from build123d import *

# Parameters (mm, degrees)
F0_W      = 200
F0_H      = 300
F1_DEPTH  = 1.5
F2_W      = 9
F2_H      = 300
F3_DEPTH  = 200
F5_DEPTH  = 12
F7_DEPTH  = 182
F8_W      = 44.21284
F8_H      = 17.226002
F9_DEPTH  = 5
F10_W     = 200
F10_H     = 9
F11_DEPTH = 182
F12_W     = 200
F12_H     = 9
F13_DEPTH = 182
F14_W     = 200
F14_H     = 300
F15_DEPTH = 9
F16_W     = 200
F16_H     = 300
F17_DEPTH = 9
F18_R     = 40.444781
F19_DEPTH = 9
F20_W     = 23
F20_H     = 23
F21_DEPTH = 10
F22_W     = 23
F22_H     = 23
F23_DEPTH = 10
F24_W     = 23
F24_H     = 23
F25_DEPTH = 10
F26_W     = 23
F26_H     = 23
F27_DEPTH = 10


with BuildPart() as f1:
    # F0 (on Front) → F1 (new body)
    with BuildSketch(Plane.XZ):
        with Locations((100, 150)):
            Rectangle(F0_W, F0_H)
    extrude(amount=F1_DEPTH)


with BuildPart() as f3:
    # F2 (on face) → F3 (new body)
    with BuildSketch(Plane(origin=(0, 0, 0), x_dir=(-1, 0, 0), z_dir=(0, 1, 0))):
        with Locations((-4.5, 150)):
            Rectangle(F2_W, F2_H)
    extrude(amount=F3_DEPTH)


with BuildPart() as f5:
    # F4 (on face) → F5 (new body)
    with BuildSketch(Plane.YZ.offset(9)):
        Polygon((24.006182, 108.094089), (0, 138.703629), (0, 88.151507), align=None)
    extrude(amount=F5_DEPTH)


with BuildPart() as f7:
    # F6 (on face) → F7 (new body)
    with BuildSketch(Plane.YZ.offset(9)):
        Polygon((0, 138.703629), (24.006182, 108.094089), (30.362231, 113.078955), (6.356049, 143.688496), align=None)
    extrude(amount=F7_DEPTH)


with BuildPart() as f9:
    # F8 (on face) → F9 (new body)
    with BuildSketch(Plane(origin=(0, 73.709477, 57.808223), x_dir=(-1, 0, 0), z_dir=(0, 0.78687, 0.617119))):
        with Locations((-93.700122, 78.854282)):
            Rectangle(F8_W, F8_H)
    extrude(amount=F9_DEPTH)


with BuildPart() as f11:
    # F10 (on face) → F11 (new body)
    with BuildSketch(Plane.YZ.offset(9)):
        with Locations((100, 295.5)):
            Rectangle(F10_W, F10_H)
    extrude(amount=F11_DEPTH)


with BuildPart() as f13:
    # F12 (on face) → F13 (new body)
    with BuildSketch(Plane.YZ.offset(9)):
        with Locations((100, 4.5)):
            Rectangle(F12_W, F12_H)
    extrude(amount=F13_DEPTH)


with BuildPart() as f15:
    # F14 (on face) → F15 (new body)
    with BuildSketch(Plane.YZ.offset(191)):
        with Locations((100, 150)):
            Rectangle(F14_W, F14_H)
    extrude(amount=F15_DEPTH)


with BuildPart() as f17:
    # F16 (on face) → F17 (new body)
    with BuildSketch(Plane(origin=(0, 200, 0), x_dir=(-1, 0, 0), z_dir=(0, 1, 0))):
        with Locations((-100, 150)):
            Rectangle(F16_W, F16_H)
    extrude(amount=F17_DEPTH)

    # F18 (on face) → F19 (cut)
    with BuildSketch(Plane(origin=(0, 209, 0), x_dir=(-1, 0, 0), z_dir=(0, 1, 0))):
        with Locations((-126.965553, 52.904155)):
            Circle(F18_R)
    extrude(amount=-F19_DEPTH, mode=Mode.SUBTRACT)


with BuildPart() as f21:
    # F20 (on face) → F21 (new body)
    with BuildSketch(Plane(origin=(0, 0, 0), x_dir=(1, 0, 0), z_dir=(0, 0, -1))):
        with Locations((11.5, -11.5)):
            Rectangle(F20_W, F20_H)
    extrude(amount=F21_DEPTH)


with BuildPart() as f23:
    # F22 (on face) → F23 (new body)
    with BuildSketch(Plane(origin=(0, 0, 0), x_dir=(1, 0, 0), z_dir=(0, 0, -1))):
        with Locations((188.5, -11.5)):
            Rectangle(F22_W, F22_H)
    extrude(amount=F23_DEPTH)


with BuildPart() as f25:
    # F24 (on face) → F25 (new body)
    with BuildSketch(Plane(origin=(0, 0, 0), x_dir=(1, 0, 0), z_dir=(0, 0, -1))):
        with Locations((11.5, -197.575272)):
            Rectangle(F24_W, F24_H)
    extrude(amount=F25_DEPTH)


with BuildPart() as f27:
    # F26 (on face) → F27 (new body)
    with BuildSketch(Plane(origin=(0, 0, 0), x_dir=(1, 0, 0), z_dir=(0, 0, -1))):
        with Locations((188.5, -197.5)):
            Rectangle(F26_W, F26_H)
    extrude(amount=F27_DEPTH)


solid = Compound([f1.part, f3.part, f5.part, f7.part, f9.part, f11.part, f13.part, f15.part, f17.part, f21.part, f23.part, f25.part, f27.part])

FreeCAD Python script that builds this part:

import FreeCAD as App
import Part
import Sketcher

doc = App.newDocument("Part")
params = doc.addObject("Spreadsheet::Sheet", "Params")
for row, (alias, value) in enumerate([
    ("sketch1_width", "200 mm"),
    ("sketch1_height", "300 mm"),
    ("pad1_length", "1.5 mm"),
    ("sketch2_width", "9 mm"),
    ("sketch2_height", "300 mm"),
    ("pad2_length", "200 mm"),
    ("pad3_length", "12 mm"),
    ("pad4_length", "182 mm"),
    ("pad5_length", "5 mm"),
    ("sketch6_width", "200 mm"),
    ("sketch6_height", "9 mm"),
    ("pad6_length", "182 mm"),
    ("sketch7_width", "200 mm"),
    ("sketch7_height", "9 mm"),
    ("pad7_length", "182 mm"),
    ("sketch8_width", "200 mm"),
    ("sketch8_height", "300 mm"),
    ("pad8_length", "9 mm"),
    ("sketch9_width", "200 mm"),
    ("sketch9_height", "300 mm"),
    ("pad9_length", "9 mm"),
    ("pocket1_length", "9 mm"),
    ("sketch11_width", "23 mm"),
    ("pad10_length", "10 mm"),
    ("sketch12_width", "23 mm"),
    ("pad11_length", "10 mm"),
    ("sketch13_width", "23 mm"),
    ("pad12_length", "10 mm"),
    ("sketch14_width", "23 mm"),
    ("pad13_length", "10 mm"),
], start=1):
    params.set(f"A{row}", alias)
    params.set(f"B{row}", "=" + value)
    params.setAlias(f"B{row}", alias)

body = doc.addObject("PartDesign::Body", "Body")

sketch1 = body.newObject("Sketcher::SketchObject", "Sketch")
sketch1.AttachmentSupport = (doc.getObject("XZ_Plane"), [""])
sketch1.MapMode = "FlatFace"
sketch1.addGeometry([
    Part.LineSegment(App.Vector(0, 300, 0), App.Vector(0, 0, 0)),
    Part.LineSegment(App.Vector(0, 0, 0), App.Vector(200, 0, 0)),
    Part.LineSegment(App.Vector(200, 0, 0), App.Vector(200, 300, 0)),
    Part.LineSegment(App.Vector(200, 300, 0), App.Vector(0, 300, 0)),
], False)
sketch1.addConstraint([
    Sketcher.Constraint("Coincident", 0, 2, 1, 1),
    Sketcher.Constraint("Coincident", 1, 2, 2, 1),
    Sketcher.Constraint("Coincident", 2, 2, 3, 1),
    Sketcher.Constraint("Coincident", 3, 2, 0, 1),
    Sketcher.Constraint("Vertical", 0),
    Sketcher.Constraint("Horizontal", 1),
    Sketcher.Constraint("Vertical", 2),
    Sketcher.Constraint("Horizontal", 3),
    Sketcher.Constraint("Coincident", 0, 2, -1, 1),
    Sketcher.Constraint("DistanceX", 1, 1, 1, 2, 200.0),
    Sketcher.Constraint("DistanceY", 0, 2, 0, 1, 300.0),
])
sketch1.setExpression("Constraints[9]", "Params.sketch1_width")
sketch1.setExpression("Constraints[10]", "Params.sketch1_height")
pad1 = body.newObject("PartDesign::Pad", "Pad")
pad1.Profile = sketch1
pad1.setExpression("Length", "Params.pad1_length")
body2 = doc.addObject("PartDesign::Body", "Body001")

sketch2 = body2.newObject("Sketcher::SketchObject", "Sketch001")
sketch2.AttachmentSupport = (doc.getObject("XZ_Plane001"), [""])
sketch2.MapMode = "FlatFace"
sketch2.addGeometry([
    Part.LineSegment(App.Vector(9, 300, 0), App.Vector(9, 0, 0)),
    Part.LineSegment(App.Vector(9, 0, 0), App.Vector(0, 0, 0)),
    Part.LineSegment(App.Vector(0, 0, 0), App.Vector(0, 300, 0)),
    Part.LineSegment(App.Vector(0, 300, 0), App.Vector(9, 300, 0)),
], False)
sketch2.addConstraint([
    Sketcher.Constraint("Coincident", 0, 2, 1, 1),
    Sketcher.Constraint("Coincident", 1, 2, 2, 1),
    Sketcher.Constraint("Coincident", 2, 2, 3, 1),
    Sketcher.Constraint("Coincident", 3, 2, 0, 1),
    Sketcher.Constraint("Vertical", 0),
    Sketcher.Constraint("Horizontal", 1),
    Sketcher.Constraint("Vertical", 2),
    Sketcher.Constraint("Horizontal", 3),
    Sketcher.Constraint("Coincident", 1, 2, -1, 1),
    Sketcher.Constraint("DistanceX", 1, 2, 1, 1, 9.0),
    Sketcher.Constraint("DistanceY", 0, 2, 0, 1, 300.0),
])
sketch2.setExpression("Constraints[9]", "Params.sketch2_width")
sketch2.setExpression("Constraints[10]", "Params.sketch2_height")
pad2 = body2.newObject("PartDesign::Pad", "Pad001")
pad2.Profile = sketch2
pad2.setExpression("Length", "Params.pad2_length")
pad2.Reversed = True
body3 = doc.addObject("PartDesign::Body", "Body002")

sketch3 = body3.newObject("Sketcher::SketchObject", "Sketch002")
sketch3.AttachmentSupport = (doc.getObject("YZ_Plane002"), [""])
sketch3.MapMode = "FlatFace"
sketch3.AttachmentOffset = App.Placement(App.Vector(0, 0, 9), App.Rotation())
sketch3.addGeometry([
    Part.LineSegment(App.Vector(24, 108, 0), App.Vector(0, 139, 0)),
    Part.LineSegment(App.Vector(0, 139, 0), App.Vector(0, 88, 0)),
    Part.LineSegment(App.Vector(0, 88, 0), App.Vector(24, 108, 0)),
], False)
sketch3.addConstraint([
    Sketcher.Constraint("Coincident", 0, 2, 1, 1),
    Sketcher.Constraint("Coincident", 1, 2, 2, 1),
    Sketcher.Constraint("Coincident", 2, 2, 0, 1),
    Sketcher.Constraint("Vertical", 1),
    Sketcher.Constraint("PointOnObject", 0, 2, -2),
    Sketcher.Constraint("DistanceY", 1, 2, 1, 1, 50.552122),
    Sketcher.Constraint("DistanceY", -1, 1, 0, 2, 138.703629),
    Sketcher.Constraint("DistanceX", -1, 1, 2, 2, 24.006182),
    Sketcher.Constraint("DistanceY", -1, 1, 2, 2, 108.094089),
])
pad3 = body3.newObject("PartDesign::Pad", "Pad002")
pad3.Profile = sketch3
pad3.setExpression("Length", "Params.pad3_length")
body4 = doc.addObject("PartDesign::Body", "Body003")

sketch4 = body4.newObject("Sketcher::SketchObject", "Sketch003")
sketch4.AttachmentSupport = (doc.getObject("YZ_Plane003"), [""])
sketch4.MapMode = "FlatFace"
sketch4.AttachmentOffset = App.Placement(App.Vector(0, 0, 9), App.Rotation())
sketch4.addGeometry([
    Part.LineSegment(App.Vector(0, 139, 0), App.Vector(24, 108, 0)),
    Part.LineSegment(App.Vector(24, 108, 0), App.Vector(30, 113, 0)),
    Part.LineSegment(App.Vector(30, 113, 0), App.Vector(6, 144, 0)),
    Part.LineSegment(App.Vector(6, 144, 0), App.Vector(0, 139, 0)),
], False)
sketch4.addConstraint([
    Sketcher.Constraint("Coincident", 0, 2, 1, 1),
    Sketcher.Constraint("Coincident", 1, 2, 2, 1),
    Sketcher.Constraint("Coincident", 2, 2, 3, 1),
    Sketcher.Constraint("Coincident", 3, 2, 0, 1),
    Sketcher.Constraint("PointOnObject", 3, 2, -2),
    Sketcher.Constraint("Perpendicular", 0, 1),
    Sketcher.Constraint("Perpendicular", 1, 2),
    Sketcher.Constraint("Perpendicular", 2, 3),
    Sketcher.Constraint("Distance", 1, 8.077639),
    Sketcher.Constraint("DistanceX", -1, 1, 0, 2, 24.006182),
    Sketcher.Constraint("DistanceY", -1, 1, 0, 2, 108.094089),
    Sketcher.Constraint("DistanceX", -1, 1, 1, 2, 30.362231),
])
pad4 = body4.newObject("PartDesign::Pad", "Pad003")
pad4.Profile = sketch4
pad4.setExpression("Length", "Params.pad4_length")
body5 = doc.addObject("PartDesign::Body", "Body004")

sketch5 = body5.newObject("Sketcher::SketchObject", "Sketch004")
sketch5.Placement = App.Placement(App.Vector(0, 73.709477, 57.808223), App.Rotation(App.Vector(-1, 0, 0), App.Vector(0, -0.617118921, 0.786869899), App.Vector(0, 0.786869899, 0.617118921), "ZXY"))
sketch5.addGeometry([
    Part.LineSegment(App.Vector(-116, 87, 0), App.Vector(-116, 70, 0)),
    Part.LineSegment(App.Vector(-116, 70, 0), App.Vector(-72, 70, 0)),
    Part.LineSegment(App.Vector(-72, 70, 0), App.Vector(-72, 87, 0)),
    Part.LineSegment(App.Vector(-72, 87, 0), App.Vector(-116, 87, 0)),
], False)
sketch5.addConstraint([
    Sketcher.Constraint("Coincident", 0, 2, 1, 1),
    Sketcher.Constraint("Coincident", 1, 2, 2, 1),
    Sketcher.Constraint("Coincident", 2, 2, 3, 1),
    Sketcher.Constraint("Coincident", 3, 2, 0, 1),
    Sketcher.Constraint("Vertical", 0),
    Sketcher.Constraint("Horizontal", 1),
    Sketcher.Constraint("Vertical", 2),
    Sketcher.Constraint("Horizontal", 3),
    Sketcher.Constraint("DistanceX", 1, 1, 1, 2, 44.21284),
    Sketcher.Constraint("DistanceX", 1, 2, -1, 1, 71.593702),
    Sketcher.Constraint("DistanceY", 0, 2, 0, 1, 17.226002),
    Sketcher.Constraint("DistanceY", -1, 1, 0, 2, 70.241281),
])
pad5 = body5.newObject("PartDesign::Pad", "Pad004")
pad5.Profile = sketch5
pad5.setExpression("Length", "Params.pad5_length")
body6 = doc.addObject("PartDesign::Body", "Body005")

sketch6 = body6.newObject("Sketcher::SketchObject", "Sketch005")
sketch6.AttachmentSupport = (doc.getObject("YZ_Plane005"), [""])
sketch6.MapMode = "FlatFace"
sketch6.AttachmentOffset = App.Placement(App.Vector(0, 0, 9), App.Rotation())
sketch6.addGeometry([
    Part.LineSegment(App.Vector(0, 300, 0), App.Vector(0, 291, 0)),
    Part.LineSegment(App.Vector(0, 291, 0), App.Vector(200, 291, 0)),
    Part.LineSegment(App.Vector(200, 291, 0), App.Vector(200, 300, 0)),
    Part.LineSegment(App.Vector(200, 300, 0), App.Vector(0, 300, 0)),
], False)
sketch6.addConstraint([
    Sketcher.Constraint("Coincident", 0, 2, 1, 1),
    Sketcher.Constraint("Coincident", 1, 2, 2, 1),
    Sketcher.Constraint("Coincident", 2, 2, 3, 1),
    Sketcher.Constraint("Coincident", 3, 2, 0, 1),
    Sketcher.Constraint("Vertical", 0),
    Sketcher.Constraint("Horizontal", 1),
    Sketcher.Constraint("Vertical", 2),
    Sketcher.Constraint("Horizontal", 3),
    Sketcher.Constraint("PointOnObject", 0, 2, -2),
    Sketcher.Constraint("DistanceX", 1, 1, 1, 2, 200.0),
    Sketcher.Constraint("DistanceY", 0, 2, 0, 1, 9.0),
    Sketcher.Constraint("DistanceY", -1, 1, 0, 2, 291.0),
])
sketch6.setExpression("Constraints[9]", "Params.sketch6_width")
sketch6.setExpression("Constraints[10]", "Params.sketch6_height")
pad6 = body6.newObject("PartDesign::Pad", "Pad005")
pad6.Profile = sketch6
pad6.setExpression("Length", "Params.pad6_length")
body7 = doc.addObject("PartDesign::Body", "Body006")

sketch7 = body7.newObject("Sketcher::SketchObject", "Sketch006")
sketch7.AttachmentSupport = (doc.getObject("YZ_Plane006"), [""])
sketch7.MapMode = "FlatFace"
sketch7.AttachmentOffset = App.Placement(App.Vector(0, 0, 9), App.Rotation())
sketch7.addGeometry([
    Part.LineSegment(App.Vector(0, 9, 0), App.Vector(0, 0, 0)),
    Part.LineSegment(App.Vector(0, 0, 0), App.Vector(200, 0, 0)),
    Part.LineSegment(App.Vector(200, 0, 0), App.Vector(200, 9, 0)),
    Part.LineSegment(App.Vector(200, 9, 0), App.Vector(0, 9, 0)),
], False)
sketch7.addConstraint([
    Sketcher.Constraint("Coincident", 0, 2, 1, 1),
    Sketcher.Constraint("Coincident", 1, 2, 2, 1),
    Sketcher.Constraint("Coincident", 2, 2, 3, 1),
    Sketcher.Constraint("Coincident", 3, 2, 0, 1),
    Sketcher.Constraint("Vertical", 0),
    Sketcher.Constraint("Horizontal", 1),
    Sketcher.Constraint("Vertical", 2),
    Sketcher.Constraint("Horizontal", 3),
    Sketcher.Constraint("Coincident", 0, 2, -1, 1),
    Sketcher.Constraint("DistanceX", 1, 1, 1, 2, 200.0),
    Sketcher.Constraint("DistanceY", 0, 2, 0, 1, 9.0),
])
sketch7.setExpression("Constraints[9]", "Params.sketch7_width")
sketch7.setExpression("Constraints[10]", "Params.sketch7_height")
pad7 = body7.newObject("PartDesign::Pad", "Pad006")
pad7.Profile = sketch7
pad7.setExpression("Length", "Params.pad7_length")
body8 = doc.addObject("PartDesign::Body", "Body007")

sketch8 = body8.newObject("Sketcher::SketchObject", "Sketch007")
sketch8.AttachmentSupport = (doc.getObject("YZ_Plane007"), [""])
sketch8.MapMode = "FlatFace"
sketch8.AttachmentOffset = App.Placement(App.Vector(0, 0, 191), App.Rotation())
sketch8.addGeometry([
    Part.LineSegment(App.Vector(0, 300, 0), App.Vector(0, 0, 0)),
    Part.LineSegment(App.Vector(0, 0, 0), App.Vector(200, 0, 0)),
    Part.LineSegment(App.Vector(200, 0, 0), App.Vector(200, 300, 0)),
    Part.LineSegment(App.Vector(200, 300, 0), App.Vector(0, 300, 0)),
], False)
sketch8.addConstraint([
    Sketcher.Constraint("Coincident", 0, 2, 1, 1),
    Sketcher.Constraint("Coincident", 1, 2, 2, 1),
    Sketcher.Constraint("Coincident", 2, 2, 3, 1),
    Sketcher.Constraint("Coincident", 3, 2, 0, 1),
    Sketcher.Constraint("Vertical", 0),
    Sketcher.Constraint("Horizontal", 1),
    Sketcher.Constraint("Vertical", 2),
    Sketcher.Constraint("Horizontal", 3),
    Sketcher.Constraint("Coincident", 0, 2, -1, 1),
    Sketcher.Constraint("DistanceX", 1, 1, 1, 2, 200.0),
    Sketcher.Constraint("DistanceY", 0, 2, 0, 1, 300.0),
])
sketch8.setExpression("Constraints[9]", "Params.sketch8_width")
sketch8.setExpression("Constraints[10]", "Params.sketch8_height")
pad8 = body8.newObject("PartDesign::Pad", "Pad007")
pad8.Profile = sketch8
pad8.setExpression("Length", "Params.pad8_length")
body9 = doc.addObject("PartDesign::Body", "Body008")

sketch9 = body9.newObject("Sketcher::SketchObject", "Sketch008")
sketch9.AttachmentSupport = (doc.getObject("XZ_Plane008"), [""])
sketch9.MapMode = "FlatFace"
sketch9.AttachmentOffset = App.Placement(App.Vector(0, 0, -200), App.Rotation())
sketch9.addGeometry([
    Part.LineSegment(App.Vector(200, 300, 0), App.Vector(200, 0, 0)),
    Part.LineSegment(App.Vector(200, 0, 0), App.Vector(0, 0, 0)),
    Part.LineSegment(App.Vector(0, 0, 0), App.Vector(0, 300, 0)),
    Part.LineSegment(App.Vector(0, 300, 0), App.Vector(200, 300, 0)),
], False)
sketch9.addConstraint([
    Sketcher.Constraint("Coincident", 0, 2, 1, 1),
    Sketcher.Constraint("Coincident", 1, 2, 2, 1),
    Sketcher.Constraint("Coincident", 2, 2, 3, 1),
    Sketcher.Constraint("Coincident", 3, 2, 0, 1),
    Sketcher.Constraint("Vertical", 0),
    Sketcher.Constraint("Horizontal", 1),
    Sketcher.Constraint("Vertical", 2),
    Sketcher.Constraint("Horizontal", 3),
    Sketcher.Constraint("Coincident", 1, 2, -1, 1),
    Sketcher.Constraint("DistanceX", 1, 2, 1, 1, 200.0),
    Sketcher.Constraint("DistanceY", 0, 2, 0, 1, 300.0),
])
sketch9.setExpression("Constraints[9]", "Params.sketch9_width")
sketch9.setExpression("Constraints[10]", "Params.sketch9_height")
pad9 = body9.newObject("PartDesign::Pad", "Pad008")
pad9.Profile = sketch9
pad9.setExpression("Length", "Params.pad9_length")
pad9.Reversed = True

sketch10 = body9.newObject("Sketcher::SketchObject", "Sketch009")
sketch10.AttachmentSupport = (doc.getObject("XZ_Plane008"), [""])
sketch10.MapMode = "FlatFace"
sketch10.AttachmentOffset = App.Placement(App.Vector(0, 0, -209), App.Rotation())
sketch10.addGeometry(Part.Circle(App.Vector(127, 53, 0), App.Vector(0, 0, 1), 40), False)
sketch10.addConstraint([
    Sketcher.Constraint("Diameter", 0, 80.889562),
    Sketcher.Constraint("DistanceX", -1, 1, 0, 3, 126.965553),
    Sketcher.Constraint("DistanceY", -1, 1, 0, 3, 52.904155),
])
pocket1 = body9.newObject("PartDesign::Pocket", "Pocket")
pocket1.Profile = sketch10
pocket1.setExpression("Length", "Params.pocket1_length")
pocket1.Reversed = True
body10 = doc.addObject("PartDesign::Body", "Body009")

sketch11 = body10.newObject("Sketcher::SketchObject", "Sketch010")
sketch11.AttachmentSupport = (doc.getObject("XY_Plane009"), [""])
sketch11.MapMode = "FlatFace"
sketch11.addGeometry([
    Part.LineSegment(App.Vector(0, 0, 0), App.Vector(0, 23, 0)),
    Part.LineSegment(App.Vector(0, 23, 0), App.Vector(23, 23, 0)),
    Part.LineSegment(App.Vector(23, 23, 0), App.Vector(23, 0, 0)),
    Part.LineSegment(App.Vector(23, 0, 0), App.Vector(0, 0, 0)),
], False)
sketch11.addConstraint([
    Sketcher.Constraint("Coincident", 0, 2, 1, 1),
    Sketcher.Constraint("Coincident", 1, 2, 2, 1),
    Sketcher.Constraint("Coincident", 2, 2, 3, 1),
    Sketcher.Constraint("Coincident", 3, 2, 0, 1),
    Sketcher.Constraint("Vertical", 0),
    Sketcher.Constraint("Horizontal", 1),
    Sketcher.Constraint("Vertical", 2),
    Sketcher.Constraint("Horizontal", 3),
    Sketcher.Constraint("Coincident", 3, 2, -1, 1),
    Sketcher.Constraint("Equal", 3, 0),
    Sketcher.Constraint("DistanceX", 1, 1, 1, 2, 23.0),
])
sketch11.setExpression("Constraints[10]", "Params.sketch11_width")
pad10 = body10.newObject("PartDesign::Pad", "Pad009")
pad10.Profile = sketch11
pad10.setExpression("Length", "Params.pad10_length")
pad10.Reversed = True
body11 = doc.addObject("PartDesign::Body", "Body010")

sketch12 = body11.newObject("Sketcher::SketchObject", "Sketch011")
sketch12.AttachmentSupport = (doc.getObject("XY_Plane010"), [""])
sketch12.MapMode = "FlatFace"
sketch12.addGeometry([
    Part.LineSegment(App.Vector(177, 0, 0), App.Vector(177, 23, 0)),
    Part.LineSegment(App.Vector(177, 23, 0), App.Vector(200, 23, 0)),
    Part.LineSegment(App.Vector(200, 23, 0), App.Vector(200, 0, 0)),
    Part.LineSegment(App.Vector(200, 0, 0), App.Vector(177, 0, 0)),
], False)
sketch12.addConstraint([
    Sketcher.Constraint("Coincident", 0, 2, 1, 1),
    Sketcher.Constraint("Coincident", 1, 2, 2, 1),
    Sketcher.Constraint("Coincident", 2, 2, 3, 1),
    Sketcher.Constraint("Coincident", 3, 2, 0, 1),
    Sketcher.Constraint("Vertical", 0),
    Sketcher.Constraint("Horizontal", 1),
    Sketcher.Constraint("Vertical", 2),
    Sketcher.Constraint("Horizontal", 3),
    Sketcher.Constraint("PointOnObject", 2, 2, -1),
    Sketcher.Constraint("Equal", 3, 0),
    Sketcher.Constraint("DistanceX", 1, 1, 1, 2, 23.0),
    Sketcher.Constraint("DistanceX", -1, 1, 0, 2, 177.0),
])
sketch12.setExpression("Constraints[10]", "Params.sketch12_width")
pad11 = body11.newObject("PartDesign::Pad", "Pad010")
pad11.Profile = sketch12
pad11.setExpression("Length", "Params.pad11_length")
pad11.Reversed = True
body12 = doc.addObject("PartDesign::Body", "Body011")

sketch13 = body12.newObject("Sketcher::SketchObject", "Sketch012")
sketch13.AttachmentSupport = (doc.getObject("XY_Plane011"), [""])
sketch13.MapMode = "FlatFace"
sketch13.addGeometry([
    Part.LineSegment(App.Vector(0, 186, 0), App.Vector(0, 209, 0)),
    Part.LineSegment(App.Vector(0, 209, 0), App.Vector(23, 209, 0)),
    Part.LineSegment(App.Vector(23, 209, 0), App.Vector(23, 186, 0)),
    Part.LineSegment(App.Vector(23, 186, 0), App.Vector(0, 186, 0)),
], False)
sketch13.addConstraint([
    Sketcher.Constraint("Coincident", 0, 2, 1, 1),
    Sketcher.Constraint("Coincident", 1, 2, 2, 1),
    Sketcher.Constraint("Coincident", 2, 2, 3, 1),
    Sketcher.Constraint("Coincident", 3, 2, 0, 1),
    Sketcher.Constraint("Vertical", 0),
    Sketcher.Constraint("Horizontal", 1),
    Sketcher.Constraint("Vertical", 2),
    Sketcher.Constraint("Horizontal", 3),
    Sketcher.Constraint("PointOnObject", 0, 2, -2),
    Sketcher.Constraint("Equal", 3, 0),
    Sketcher.Constraint("DistanceX", 1, 1, 1, 2, 23.0),
    Sketcher.Constraint("DistanceY", -1, 1, 0, 2, 209.075272),
])
sketch13.setExpression("Constraints[10]", "Params.sketch13_width")
pad12 = body12.newObject("PartDesign::Pad", "Pad011")
pad12.Profile = sketch13
pad12.setExpression("Length", "Params.pad12_length")
pad12.Reversed = True
body13 = doc.addObject("PartDesign::Body", "Body012")

sketch14 = body13.newObject("Sketcher::SketchObject", "Sketch013")
sketch14.AttachmentSupport = (doc.getObject("XY_Plane012"), [""])
sketch14.MapMode = "FlatFace"
sketch14.addGeometry([
    Part.LineSegment(App.Vector(177, 186, 0), App.Vector(177, 209, 0)),
    Part.LineSegment(App.Vector(177, 209, 0), App.Vector(200, 209, 0)),
    Part.LineSegment(App.Vector(200, 209, 0), App.Vector(200, 186, 0)),
    Part.LineSegment(App.Vector(200, 186, 0), App.Vector(177, 186, 0)),
], False)
sketch14.addConstraint([
    Sketcher.Constraint("Coincident", 0, 2, 1, 1),
    Sketcher.Constraint("Coincident", 1, 2, 2, 1),
    Sketcher.Constraint("Coincident", 2, 2, 3, 1),
    Sketcher.Constraint("Coincident", 3, 2, 0, 1),
    Sketcher.Constraint("Vertical", 0),
    Sketcher.Constraint("Horizontal", 1),
    Sketcher.Constraint("Vertical", 2),
    Sketcher.Constraint("Horizontal", 3),
    Sketcher.Constraint("Equal", 3, 0),
    Sketcher.Constraint("DistanceX", 1, 1, 1, 2, 23.0),
    Sketcher.Constraint("DistanceX", -1, 1, 0, 2, 177.0),
    Sketcher.Constraint("DistanceY", -1, 1, 0, 2, 209.0),
])
sketch14.setExpression("Constraints[9]", "Params.sketch14_width")
pad13 = body13.newObject("PartDesign::Pad", "Pad012")
pad13.Profile = sketch14
pad13.setExpression("Length", "Params.pad13_length")
pad13.Reversed = True

doc.recompute()
